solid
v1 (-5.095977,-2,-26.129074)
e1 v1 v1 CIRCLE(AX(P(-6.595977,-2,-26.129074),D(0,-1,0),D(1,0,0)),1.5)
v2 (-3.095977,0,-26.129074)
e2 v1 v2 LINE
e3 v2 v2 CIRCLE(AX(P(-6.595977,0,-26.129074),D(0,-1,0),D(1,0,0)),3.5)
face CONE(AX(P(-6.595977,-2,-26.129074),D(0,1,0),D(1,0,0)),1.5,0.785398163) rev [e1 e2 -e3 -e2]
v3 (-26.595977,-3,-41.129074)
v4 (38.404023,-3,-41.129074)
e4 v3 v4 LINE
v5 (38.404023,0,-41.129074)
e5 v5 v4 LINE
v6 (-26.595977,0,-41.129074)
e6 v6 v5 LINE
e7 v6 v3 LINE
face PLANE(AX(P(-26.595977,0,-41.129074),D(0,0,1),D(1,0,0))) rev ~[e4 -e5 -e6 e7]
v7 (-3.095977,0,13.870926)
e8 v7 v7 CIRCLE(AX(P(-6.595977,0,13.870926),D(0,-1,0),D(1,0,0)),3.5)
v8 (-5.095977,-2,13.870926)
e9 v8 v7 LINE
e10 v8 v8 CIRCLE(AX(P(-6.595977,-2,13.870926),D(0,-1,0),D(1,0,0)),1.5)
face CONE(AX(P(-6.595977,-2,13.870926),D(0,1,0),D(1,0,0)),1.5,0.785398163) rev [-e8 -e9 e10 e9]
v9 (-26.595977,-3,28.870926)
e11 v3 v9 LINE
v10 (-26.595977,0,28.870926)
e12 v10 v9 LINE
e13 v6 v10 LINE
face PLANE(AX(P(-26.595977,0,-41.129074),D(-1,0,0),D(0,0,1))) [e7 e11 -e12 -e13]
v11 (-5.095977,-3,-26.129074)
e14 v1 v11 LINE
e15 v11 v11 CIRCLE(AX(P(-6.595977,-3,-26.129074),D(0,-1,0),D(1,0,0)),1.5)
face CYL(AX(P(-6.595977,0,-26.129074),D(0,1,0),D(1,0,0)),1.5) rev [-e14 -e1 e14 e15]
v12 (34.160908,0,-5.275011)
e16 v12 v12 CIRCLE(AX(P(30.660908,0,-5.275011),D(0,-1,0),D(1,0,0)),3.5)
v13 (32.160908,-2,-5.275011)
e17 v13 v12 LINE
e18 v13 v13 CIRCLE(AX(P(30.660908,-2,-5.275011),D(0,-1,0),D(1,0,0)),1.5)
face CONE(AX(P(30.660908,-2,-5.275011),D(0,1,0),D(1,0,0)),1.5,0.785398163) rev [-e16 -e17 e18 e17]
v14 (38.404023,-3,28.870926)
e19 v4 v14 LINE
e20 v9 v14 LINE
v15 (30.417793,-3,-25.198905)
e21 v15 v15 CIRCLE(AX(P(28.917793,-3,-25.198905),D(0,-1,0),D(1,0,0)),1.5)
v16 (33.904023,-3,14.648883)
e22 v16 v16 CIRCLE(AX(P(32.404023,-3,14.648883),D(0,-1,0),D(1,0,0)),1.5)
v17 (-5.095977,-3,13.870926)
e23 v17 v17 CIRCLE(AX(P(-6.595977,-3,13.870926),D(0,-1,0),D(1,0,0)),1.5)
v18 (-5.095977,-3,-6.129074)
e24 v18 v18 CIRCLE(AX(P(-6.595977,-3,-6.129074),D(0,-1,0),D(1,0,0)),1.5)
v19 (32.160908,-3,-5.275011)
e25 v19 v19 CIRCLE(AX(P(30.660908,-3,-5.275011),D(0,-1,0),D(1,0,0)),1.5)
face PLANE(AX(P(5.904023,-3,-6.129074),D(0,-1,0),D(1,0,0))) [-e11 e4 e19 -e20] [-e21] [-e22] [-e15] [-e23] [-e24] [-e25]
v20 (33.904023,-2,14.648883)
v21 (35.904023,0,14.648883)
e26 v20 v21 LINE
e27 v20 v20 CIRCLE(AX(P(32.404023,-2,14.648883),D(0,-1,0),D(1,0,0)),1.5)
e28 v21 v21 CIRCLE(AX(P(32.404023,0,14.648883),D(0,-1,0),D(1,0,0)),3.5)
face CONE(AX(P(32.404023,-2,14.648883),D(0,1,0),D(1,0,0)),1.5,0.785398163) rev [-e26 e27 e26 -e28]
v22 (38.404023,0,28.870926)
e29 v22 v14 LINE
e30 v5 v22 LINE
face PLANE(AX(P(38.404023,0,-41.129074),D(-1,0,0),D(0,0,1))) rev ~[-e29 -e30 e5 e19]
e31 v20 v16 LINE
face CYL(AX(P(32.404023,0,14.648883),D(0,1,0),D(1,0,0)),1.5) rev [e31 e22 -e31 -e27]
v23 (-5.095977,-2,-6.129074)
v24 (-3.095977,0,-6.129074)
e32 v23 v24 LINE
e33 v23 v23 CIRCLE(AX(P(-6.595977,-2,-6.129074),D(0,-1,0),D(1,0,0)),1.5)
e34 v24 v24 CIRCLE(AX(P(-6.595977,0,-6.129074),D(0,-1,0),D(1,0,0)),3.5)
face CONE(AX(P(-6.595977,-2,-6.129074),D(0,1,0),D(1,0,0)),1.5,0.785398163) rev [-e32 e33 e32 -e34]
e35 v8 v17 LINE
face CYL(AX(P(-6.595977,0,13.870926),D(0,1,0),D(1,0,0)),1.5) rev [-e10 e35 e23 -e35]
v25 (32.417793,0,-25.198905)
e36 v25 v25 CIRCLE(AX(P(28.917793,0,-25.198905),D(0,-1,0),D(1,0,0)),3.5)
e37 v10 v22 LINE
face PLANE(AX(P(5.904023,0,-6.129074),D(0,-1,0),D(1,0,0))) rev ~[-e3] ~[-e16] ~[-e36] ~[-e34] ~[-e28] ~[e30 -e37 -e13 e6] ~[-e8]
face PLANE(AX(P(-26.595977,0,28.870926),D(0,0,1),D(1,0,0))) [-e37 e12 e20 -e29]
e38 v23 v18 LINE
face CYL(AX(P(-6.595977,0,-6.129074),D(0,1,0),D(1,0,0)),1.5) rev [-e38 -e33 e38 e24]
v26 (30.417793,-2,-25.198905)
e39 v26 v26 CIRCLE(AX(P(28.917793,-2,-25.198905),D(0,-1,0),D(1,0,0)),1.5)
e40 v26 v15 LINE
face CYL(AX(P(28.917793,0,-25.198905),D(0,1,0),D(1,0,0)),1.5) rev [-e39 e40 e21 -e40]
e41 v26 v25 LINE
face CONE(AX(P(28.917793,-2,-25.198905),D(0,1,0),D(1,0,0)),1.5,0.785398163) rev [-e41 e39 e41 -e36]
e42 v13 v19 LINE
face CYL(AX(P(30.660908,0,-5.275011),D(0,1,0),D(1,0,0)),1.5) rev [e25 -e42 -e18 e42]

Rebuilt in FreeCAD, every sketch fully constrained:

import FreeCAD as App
import Part
import Sketcher

V = App.Vector
Q = App.Units.Quantity


def edges_at(feature, points):
    """Names of the edges that pass closest to the given points."""
    edges = feature.Shape.Edges
    near = lambda p: min(range(len(edges)), key=lambda i: edges[i].distToShape(Part.Vertex(*p))[0])
    return sorted({f"Edge{near(p) + 1}" for p in points})

doc = App.newDocument("Part")
body = doc.addObject("PartDesign::Body", "Body")

# Sketch on XZ plane
sketch1 = doc.addObject("Sketcher::SketchObject", "Sketch")
body.addObject(sketch1)
sketch1.AttachmentSupport = (doc.XZ_Plane, [""])
sketch1.MapMode = "FlatFace"
sketch1.addGeometry([
    Part.LineSegment(V(-26.595977, 28.870926, 0), V(-26.595977, -41.129074, 0)),  # 0
    Part.LineSegment(V(-26.595977, -41.129074, 0), V(38.404023, -41.129074, 0)),  # 1
    Part.LineSegment(V(38.404023, -41.129074, 0), V(38.404023, 28.870926, 0)),  # 2
    Part.LineSegment(V(38.404023, 28.870926, 0), V(-26.595977, 28.870926, 0)),  # 3
    Part.Circle(V(-6.595977, -26.129074, 0), V(0, 0, 1), 1.5),  # 4
    Part.Circle(V(-6.595977, -6.129074, 0), V(0, 0, 1), 1.5),  # 5
    Part.Circle(V(28.917793, -25.198905, 0), V(0, 0, 1), 1.5),  # 6
    Part.Circle(V(-6.595977, 13.870926, 0), V(0, 0, 1), 1.5),  # 7
    Part.Circle(V(30.660908, -5.275011, 0), V(0, 0, 1), 1.5),  # 8
    Part.Circle(V(32.404023, 14.648883, 0), V(0, 0, 1), 1.5),  # 9
], False)
sketch1.addConstraint([
    Sketcher.Constraint("Coincident", 0, 2, 1, 1),
    Sketcher.Constraint("Coincident", 1, 2, 2, 1),
    Sketcher.Constraint("Coincident", 2, 2, 3, 1),
    Sketcher.Constraint("Coincident", 3, 2, 0, 1),
    Sketcher.Constraint("Vertical", 0),
    Sketcher.Constraint("Horizontal", 1),
    Sketcher.Constraint("Vertical", 2),
    Sketcher.Constraint("Horizontal", 3),
    Sketcher.Constraint("Equal", 4, 5),
    Sketcher.Constraint("Equal", 5, 6),
    Sketcher.Constraint("Equal", 6, 7),
    Sketcher.Constraint("Equal", 7, 8),
    Sketcher.Constraint("Equal", 8, 9),
    Sketcher.Constraint("Vertical", 4, 3, 5, 3),
    Sketcher.Constraint("Vertical", 5, 3, 7, 3),
    Sketcher.Constraint("Diameter", 4, Q("3 mm")),
    Sketcher.Constraint("DistanceX", 1, 1, 1, 2, Q("65 mm")),
    Sketcher.Constraint("DistanceY", 0, 2, 0, 1, Q("70 mm")),
    Sketcher.Constraint("DistanceY", 4, 3, 5, 3, Q("20 mm")),
    Sketcher.Constraint("DistanceY", 5, 3, 7, 3, Q("20 mm")),
    Sketcher.Constraint("DistanceX", 7, 3, 9, 3, Q("39 mm")),
    Sketcher.Constraint("DistanceX", 0, 2, 4, 3, Q("20 mm")),
    Sketcher.Constraint("DistanceY", 0, 2, 4, 3, Q("15 mm")),
    Sketcher.Constraint("DistanceY", 8, 3, -1, 1, Q("5.275011 mm")),
    Sketcher.Constraint("DistanceX", 4, 3, 6, 3, Q("35.51377 mm")),
    Sketcher.Constraint("DistanceY", 4, 3, 6, 3, Q("0.930169 mm")),
    Sketcher.Constraint("DistanceX", 4, 3, -1, 1, Q("6.595977 mm")),
    Sketcher.Constraint("DistanceY", 4, 3, -1, 1, Q("26.129074 mm")),
    Sketcher.Constraint("DistanceX", -1, 1, 8, 3, Q("30.660908 mm")),
    Sketcher.Constraint("DistanceY", -1, 1, 9, 3, Q("14.648883 mm")),
])
pad1 = doc.addObject("PartDesign::Pad", "Pad")
body.addObject(pad1)
pad1.Profile = sketch1
pad1.Length = 3
doc.recompute()

chamfer = doc.addObject("PartDesign::Chamfer", "Chamfer")
body.addObject(chamfer)
chamfer.Base = (pad1, edges_at(pad1, [
    (30.904, 0, 14.649),
    (-8.096, 0, 13.871),
    (29.161, 0, -5.275),
    (-8.096, 0, -6.129),
    (-8.096, 0, -26.129),
    (27.418, 0, -25.199),
]))
chamfer.Size = 2

doc.recompute()
